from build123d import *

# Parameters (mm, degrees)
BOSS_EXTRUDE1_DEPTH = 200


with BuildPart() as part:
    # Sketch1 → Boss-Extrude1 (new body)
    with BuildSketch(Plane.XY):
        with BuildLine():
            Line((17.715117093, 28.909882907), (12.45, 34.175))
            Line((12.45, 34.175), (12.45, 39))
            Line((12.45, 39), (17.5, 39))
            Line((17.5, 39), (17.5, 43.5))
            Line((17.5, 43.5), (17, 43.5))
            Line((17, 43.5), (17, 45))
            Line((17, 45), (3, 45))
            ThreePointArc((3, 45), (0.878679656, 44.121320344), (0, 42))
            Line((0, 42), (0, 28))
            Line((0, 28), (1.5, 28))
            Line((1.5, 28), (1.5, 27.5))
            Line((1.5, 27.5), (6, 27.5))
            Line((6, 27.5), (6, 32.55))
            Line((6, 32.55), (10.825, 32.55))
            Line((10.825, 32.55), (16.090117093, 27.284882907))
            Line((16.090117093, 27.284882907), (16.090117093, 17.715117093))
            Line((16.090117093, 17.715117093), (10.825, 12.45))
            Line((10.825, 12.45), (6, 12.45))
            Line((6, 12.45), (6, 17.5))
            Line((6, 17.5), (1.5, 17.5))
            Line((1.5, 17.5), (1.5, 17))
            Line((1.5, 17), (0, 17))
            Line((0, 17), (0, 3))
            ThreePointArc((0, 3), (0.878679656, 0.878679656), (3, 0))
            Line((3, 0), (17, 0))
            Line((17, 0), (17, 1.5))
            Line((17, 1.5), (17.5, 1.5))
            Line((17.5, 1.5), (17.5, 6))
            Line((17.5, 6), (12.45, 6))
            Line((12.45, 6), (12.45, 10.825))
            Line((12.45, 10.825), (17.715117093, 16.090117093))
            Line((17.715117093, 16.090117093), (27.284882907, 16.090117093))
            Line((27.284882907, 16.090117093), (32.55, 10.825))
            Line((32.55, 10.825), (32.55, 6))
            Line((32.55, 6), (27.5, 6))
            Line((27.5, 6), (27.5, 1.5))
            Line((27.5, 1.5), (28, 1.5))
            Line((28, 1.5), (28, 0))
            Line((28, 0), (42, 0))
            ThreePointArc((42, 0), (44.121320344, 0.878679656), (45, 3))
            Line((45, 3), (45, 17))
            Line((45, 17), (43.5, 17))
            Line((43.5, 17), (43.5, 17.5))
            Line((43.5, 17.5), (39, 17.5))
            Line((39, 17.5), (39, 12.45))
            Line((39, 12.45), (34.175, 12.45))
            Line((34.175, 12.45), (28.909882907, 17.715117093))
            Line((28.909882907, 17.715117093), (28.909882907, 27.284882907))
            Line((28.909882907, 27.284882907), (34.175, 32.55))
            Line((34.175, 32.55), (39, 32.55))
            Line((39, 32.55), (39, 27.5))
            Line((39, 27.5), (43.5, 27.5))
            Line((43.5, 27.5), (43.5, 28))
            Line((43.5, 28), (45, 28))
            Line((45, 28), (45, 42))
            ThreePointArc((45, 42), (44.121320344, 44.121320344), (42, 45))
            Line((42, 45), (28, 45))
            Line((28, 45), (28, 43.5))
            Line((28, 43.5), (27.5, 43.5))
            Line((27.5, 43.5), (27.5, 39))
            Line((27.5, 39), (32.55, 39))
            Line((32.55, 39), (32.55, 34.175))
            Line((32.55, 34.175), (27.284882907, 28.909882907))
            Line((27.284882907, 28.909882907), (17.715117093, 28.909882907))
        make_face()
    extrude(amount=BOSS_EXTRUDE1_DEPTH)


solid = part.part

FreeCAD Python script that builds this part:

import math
import FreeCAD as App
import Part
import Sketcher

doc = App.newDocument("Part")
body = doc.addObject("PartDesign::Body", "Body")

# Sketch on XY plane
sketch1 = doc.addObject("Sketcher::SketchObject", "Sketch")
body.addObject(sketch1)
sketch1.AttachmentSupport = (doc.XY_Plane, [""])
sketch1.MapMode = "FlatFace"
sketch1.addGeometry(Part.LineSegment(App.Vector(17.7, 28.9, 0), App.Vector(12.4, 34.2, 0)), False)
sketch1.addGeometry(Part.LineSegment(App.Vector(12.4, 34.2, 0), App.Vector(12.4, 39, 0)), False)
sketch1.addGeometry(Part.LineSegment(App.Vector(12.4, 39, 0), App.Vector(17.5, 39, 0)), False)
sketch1.addGeometry(Part.LineSegment(App.Vector(17.5, 39, 0), App.Vector(17.5, 43.5, 0)), False)
sketch1.addGeometry(Part.LineSegment(App.Vector(17.5, 43.5, 0), App.Vector(17, 43.5, 0)), False)
sketch1.addGeometry(Part.LineSegment(App.Vector(17, 43.5, 0), App.Vector(17, 45, 0)), False)
sketch1.addGeometry(Part.LineSegment(App.Vector(17, 45, 0), App.Vector(3, 45, 0)), False)
sketch1.addGeometry(Part.ArcOfCircle(Part.Circle(App.Vector(3, 42, 0), App.Vector(0, 0, 1), 3), math.radians(90), math.radians(180)), False)
sketch1.addGeometry(Part.LineSegment(App.Vector(0, 42, 0), App.Vector(0, 28, 0)), False)
sketch1.addGeometry(Part.LineSegment(App.Vector(0, 28, 0), App.Vector(1.5, 28, 0)), False)
sketch1.addGeometry(Part.LineSegment(App.Vector(1.5, 28, 0), App.Vector(1.5, 27.5, 0)), False)
sketch1.addGeometry(Part.LineSegment(App.Vector(1.5, 27.5, 0), App.Vector(6, 27.5, 0)), False)
sketch1.addGeometry(Part.LineSegment(App.Vector(6, 27.5, 0), App.Vector(6, 32.5, 0)), False)
sketch1.addGeometry(Part.LineSegment(App.Vector(6, 32.5, 0), App.Vector(10.8, 32.5, 0)), False)
sketch1.addGeometry(Part.LineSegment(App.Vector(10.8, 32.5, 0), App.Vector(16.1, 27.3, 0)), False)
sketch1.addGeometry(Part.LineSegment(App.Vector(16.1, 27.3, 0), App.Vector(16.1, 17.7, 0)), False)
sketch1.addGeometry(Part.LineSegment(App.Vector(16.1, 17.7, 0), App.Vector(10.8, 12.4, 0)), False)
sketch1.addGeometry(Part.LineSegment(App.Vector(10.8, 12.4, 0), App.Vector(6, 12.4, 0)), False)
sketch1.addGeometry(Part.LineSegment(App.Vector(6, 12.4, 0), App.Vector(6, 17.5, 0)), False)
sketch1.addGeometry(Part.LineSegment(App.Vector(6, 17.5, 0), App.Vector(1.5, 17.5, 0)), False)
sketch1.addGeometry(Part.LineSegment(App.Vector(1.5, 17.5, 0), App.Vector(1.5, 17, 0)), False)
sketch1.addGeometry(Part.LineSegment(App.Vector(1.5, 17, 0), App.Vector(0, 17, 0)), False)
sketch1.addGeometry(Part.LineSegment(App.Vector(0, 17, 0), App.Vector(0, 3, 0)), False)
sketch1.addGeometry(Part.ArcOfCircle(Part.Circle(App.Vector(3, 3, 0), App.Vector(0, 0, 1), 3), math.radians(180), math.radians(270)), False)
sketch1.addGeometry(Part.LineSegment(App.Vector(3, 0, 0), App.Vector(17, 0, 0)), False)
sketch1.addGeometry(Part.LineSegment(App.Vector(17, 0, 0), App.Vector(17, 1.5, 0)), False)
sketch1.addGeometry(Part.LineSegment(App.Vector(17, 1.5, 0), App.Vector(17.5, 1.5, 0)), False)
sketch1.addGeometry(Part.LineSegment(App.Vector(17.5, 1.5, 0), App.Vector(17.5, 6, 0)), False)
sketch1.addGeometry(Part.LineSegment(App.Vector(17.5, 6, 0), App.Vector(12.4, 6, 0)), False)
sketch1.addGeometry(Part.LineSegment(App.Vector(12.4, 6, 0), App.Vector(12.4, 10.8, 0)), False)
sketch1.addGeometry(Part.LineSegment(App.Vector(12.4, 10.8, 0), App.Vector(17.7, 16.1, 0)), False)
sketch1.addGeometry(Part.LineSegment(App.Vector(17.7, 16.1, 0), App.Vector(27.3, 16.1, 0)), False)
sketch1.addGeometry(Part.LineSegment(App.Vector(27.3, 16.1, 0), App.Vector(32.5, 10.8, 0)), False)
sketch1.addGeometry(Part.LineSegment(App.Vector(32.5, 10.8, 0), App.Vector(32.5, 6, 0)), False)
sketch1.addGeometry(Part.LineSegment(App.Vector(32.5, 6, 0), App.Vector(27.5, 6, 0)), False)
sketch1.addGeometry(Part.LineSegment(App.Vector(27.5, 6, 0), App.Vector(27.5, 1.5, 0)), False)
sketch1.addGeometry(Part.LineSegment(App.Vector(27.5, 1.5, 0), App.Vector(28, 1.5, 0)), False)
sketch1.addGeometry(Part.LineSegment(App.Vector(28, 1.5, 0), App.Vector(28, 0, 0)), False)
sketch1.addGeometry(Part.LineSegment(App.Vector(28, 0, 0), App.Vector(42, 0, 0)), False)
sketch1.addGeometry(Part.ArcOfCircle(Part.Circle(App.Vector(42, 3, 0), App.Vector(0, 0, 1), 3), math.radians(-90), math.radians(0)), False)
sketch1.addGeometry(Part.LineSegment(App.Vector(45, 3, 0), App.Vector(45, 17, 0)), False)
sketch1.addGeometry(Part.LineSegment(App.Vector(45, 17, 0), App.Vector(43.5, 17, 0)), False)
sketch1.addGeometry(Part.LineSegment(App.Vector(43.5, 17, 0), App.Vector(43.5, 17.5, 0)), False)
sketch1.addGeometry(Part.LineSegment(App.Vector(43.5, 17.5, 0), App.Vector(39, 17.5, 0)), False)
sketch1.addGeometry(Part.LineSegment(App.Vector(39, 17.5, 0), App.Vector(39, 12.4, 0)), False)
sketch1.addGeometry(Part.LineSegment(App.Vector(39, 12.4, 0), App.Vector(34.2, 12.4, 0)), False)
sketch1.addGeometry(Part.LineSegment(App.Vector(34.2, 12.4, 0), App.Vector(28.9, 17.7, 0)), False)
sketch1.addGeometry(Part.LineSegment(App.Vector(28.9, 17.7, 0), App.Vector(28.9, 27.3, 0)), False)
sketch1.addGeometry(Part.LineSegment(App.Vector(28.9, 27.3, 0), App.Vector(34.2, 32.5, 0)), False)
sketch1.addGeometry(Part.LineSegment(App.Vector(34.2, 32.5, 0), App.Vector(39, 32.5, 0)), False)
sketch1.addGeometry(Part.LineSegment(App.Vector(39, 32.5, 0), App.Vector(39, 27.5, 0)), False)
sketch1.addGeometry(Part.LineSegment(App.Vector(39, 27.5, 0), App.Vector(43.5, 27.5, 0)), False)
sketch1.addGeometry(Part.LineSegment(App.Vector(43.5, 27.5, 0), App.Vector(43.5, 28, 0)), False)
sketch1.addGeometry(Part.LineSegment(App.Vector(43.5, 28, 0), App.Vector(45, 28, 0)), False)
sketch1.addGeometry(Part.LineSegment(App.Vector(45, 28, 0), App.Vector(45, 42, 0)), False)
sketch1.addGeometry(Part.ArcOfCircle(Part.Circle(App.Vector(42, 42, 0), App.Vector(0, 0, 1), 3), math.radians(0), math.radians(90)), False)
sketch1.addGeometry(Part.LineSegment(App.Vector(42, 45, 0), App.Vector(28, 45, 0)), False)
sketch1.addGeometry(Part.LineSegment(App.Vector(28, 45, 0), App.Vector(28, 43.5, 0)), False)
sketch1.addGeometry(Part.LineSegment(App.Vector(28, 43.5, 0), App.Vector(27.5, 43.5, 0)), False)
sketch1.addGeometry(Part.LineSegment(App.Vector(27.5, 43.5, 0), App.Vector(27.5, 39, 0)), False)
sketch1.addGeometry(Part.LineSegment(App.Vector(27.5, 39, 0), App.Vector(32.5, 39, 0)), False)
sketch1.addGeometry(Part.LineSegment(App.Vector(32.5, 39, 0), App.Vector(32.5, 34.2, 0)), False)
sketch1.addGeometry(Part.LineSegment(App.Vector(32.5, 34.2, 0), App.Vector(27.3, 28.9, 0)), False)
sketch1.addGeometry(Part.LineSegment(App.Vector(27.3, 28.9, 0), App.Vector(17.7, 28.9, 0)), False)
sketch1.addConstraint(Sketcher.Constraint("Coincident", 0, 2, 1, 1))
sketch1.addConstraint(Sketcher.Constraint("Coincident", 1, 2, 2, 1))
sketch1.addConstraint(Sketcher.Constraint("Coincident", 2, 2, 3, 1))
sketch1.addConstraint(Sketcher.Constraint("Coincident", 3, 2, 4, 1))
sketch1.addConstraint(Sketcher.Constraint("Coincident", 4, 2, 5, 1))
sketch1.addConstraint(Sketcher.Constraint("Coincident", 5, 2, 6, 1))
sketch1.addConstraint(Sketcher.Constraint("Tangent", 6, 2, 7, 1))
sketch1.addConstraint(Sketcher.Constraint("Tangent", 7, 2, 8, 1))
sketch1.addConstraint(Sketcher.Constraint("Coincident", 8, 2, 9, 1))
sketch1.addConstraint(Sketcher.Constraint("Coincident", 9, 2, 10, 1))
sketch1.addConstraint(Sketcher.Constraint("Coincident", 10, 2, 11, 1))
sketch1.addConstraint(Sketcher.Constraint("Coincident", 11, 2, 12, 1))
sketch1.addConstraint(Sketcher.Constraint("Coincident", 12, 2, 13, 1))
sketch1.addConstraint(Sketcher.Constraint("Coincident", 13, 2, 14, 1))
sketch1.addConstraint(Sketcher.Constraint("Coincident", 14, 2, 15, 1))
sketch1.addConstraint(Sketcher.Constraint("Coincident", 15, 2, 16, 1))
sketch1.addConstraint(Sketcher.Constraint("Coincident", 16, 2, 17, 1))
sketch1.addConstraint(Sketcher.Constraint("Coincident", 17, 2, 18, 1))
sketch1.addConstraint(Sketcher.Constraint("Coincident", 18, 2, 19, 1))
sketch1.addConstraint(Sketcher.Constraint("Coincident", 19, 2, 20, 1))
sketch1.addConstraint(Sketcher.Constraint("Coincident", 20, 2, 21, 1))
sketch1.addConstraint(Sketcher.Constraint("Coincident", 21, 2, 22, 1))
sketch1.addConstraint(Sketcher.Constraint("Tangent", 22, 2, 23, 1))
sketch1.addConstraint(Sketcher.Constraint("Tangent", 23, 2, 24, 1))
sketch1.addConstraint(Sketcher.Constraint("Coincident", 24, 2, 25, 1))
sketch1.addConstraint(Sketcher.Constraint("Coincident", 25, 2, 26, 1))
sketch1.addConstraint(Sketcher.Constraint("Coincident", 26, 2, 27, 1))
sketch1.addConstraint(Sketcher.Constraint("Coincident", 27, 2, 28, 1))
sketch1.addConstraint(Sketcher.Constraint("Coincident", 28, 2, 29, 1))
sketch1.addConstraint(Sketcher.Constraint("Coincident", 29, 2, 30, 1))
sketch1.addConstraint(Sketcher.Constraint("Coincident", 30, 2, 31, 1))
sketch1.addConstraint(Sketcher.Constraint("Coincident", 31, 2, 32, 1))
sketch1.addConstraint(Sketcher.Constraint("Coincident", 32, 2, 33, 1))
sketch1.addConstraint(Sketcher.Constraint("Coincident", 33, 2, 34, 1))
sketch1.addConstraint(Sketcher.Constraint("Coincident", 34, 2, 35, 1))
sketch1.addConstraint(Sketcher.Constraint("Coincident", 35, 2, 36, 1))
sketch1.addConstraint(Sketcher.Constraint("Coincident", 36, 2, 37, 1))
sketch1.addConstraint(Sketcher.Constraint("Coincident", 37, 2, 38, 1))
sketch1.addConstraint(Sketcher.Constraint("Tangent", 38, 2, 39, 1))
sketch1.addConstraint(Sketcher.Constraint("Tangent", 39, 2, 40, 1))
sketch1.addConstraint(Sketcher.Constraint("Coincident", 40, 2, 41, 1))
sketch1.addConstraint(Sketcher.Constraint("Coincident", 41, 2, 42, 1))
sketch1.addConstraint(Sketcher.Constraint("Coincident", 42, 2, 43, 1))
sketch1.addConstraint(Sketcher.Constraint("Coincident", 43, 2, 44, 1))
sketch1.addConstraint(Sketcher.Constraint("Coincident", 44, 2, 45, 1))
sketch1.addConstraint(Sketcher.Constraint("Coincident", 45, 2, 46, 1))
sketch1.addConstraint(Sketcher.Constraint("Coincident", 46, 2, 47, 1))
sketch1.addConstraint(Sketcher.Constraint("Coincident", 47, 2, 48, 1))
sketch1.addConstraint(Sketcher.Constraint("Coincident", 48, 2, 49, 1))
sketch1.addConstraint(Sketcher.Constraint("Coincident", 49, 2, 50, 1))
sketch1.addConstraint(Sketcher.Constraint("Coincident", 50, 2, 51, 1))
sketch1.addConstraint(Sketcher.Constraint("Coincident", 51, 2, 52, 1))
sketch1.addConstraint(Sketcher.Constraint("Coincident", 52, 2, 53, 1))
sketch1.addConstraint(Sketcher.Constraint("Coincident", 53, 2, 54, 1))
sketch1.addConstraint(Sketcher.Constraint("Tangent", 54, 2, 55, 1))
sketch1.addConstraint(Sketcher.Constraint("Tangent", 55, 2, 56, 1))
sketch1.addConstraint(Sketcher.Constraint("Coincident", 56, 2, 57, 1))
sketch1.addConstraint(Sketcher.Constraint("Coincident", 57, 2, 58, 1))
sketch1.addConstraint(Sketcher.Constraint("Coincident", 58, 2, 59, 1))
sketch1.addConstraint(Sketcher.Constraint("Coincident", 59, 2, 60, 1))
sketch1.addConstraint(Sketcher.Constraint("Coincident", 60, 2, 61, 1))
sketch1.addConstraint(Sketcher.Constraint("Coincident", 61, 2, 62, 1))
sketch1.addConstraint(Sketcher.Constraint("Coincident", 62, 2, 63, 1))
sketch1.addConstraint(Sketcher.Constraint("Coincident", 63, 2, 0, 1))
sketch1.addConstraint(Sketcher.Constraint("Vertical", 1))
sketch1.addConstraint(Sketcher.Constraint("Horizontal", 2))
sketch1.addConstraint(Sketcher.Constraint("Vertical", 3))
sketch1.addConstraint(Sketcher.Constraint("Horizontal", 4))
sketch1.addConstraint(Sketcher.Constraint("Vertical", 5))
sketch1.addConstraint(Sketcher.Constraint("Horizontal", 6))
sketch1.addConstraint(Sketcher.Constraint("Vertical", 8))
sketch1.addConstraint(Sketcher.Constraint("Horizontal", 9))
sketch1.addConstraint(Sketcher.Constraint("Vertical", 10))
sketch1.addConstraint(Sketcher.Constraint("Horizontal", 11))
sketch1.addConstraint(Sketcher.Constraint("Vertical", 12))
sketch1.addConstraint(Sketcher.Constraint("Horizontal", 13))
sketch1.addConstraint(Sketcher.Constraint("Vertical", 15))
sketch1.addConstraint(Sketcher.Constraint("Horizontal", 17))
sketch1.addConstraint(Sketcher.Constraint("Vertical", 18))
sketch1.addConstraint(Sketcher.Constraint("Horizontal", 19))
sketch1.addConstraint(Sketcher.Constraint("Vertical", 20))
sketch1.addConstraint(Sketcher.Constraint("Horizontal", 21))
sketch1.addConstraint(Sketcher.Constraint("Vertical", 22))
sketch1.addConstraint(Sketcher.Constraint("Horizontal", 24))
sketch1.addConstraint(Sketcher.Constraint("Vertical", 25))
sketch1.addConstraint(Sketcher.Constraint("Horizontal", 26))
sketch1.addConstraint(Sketcher.Constraint("Vertical", 27))
sketch1.addConstraint(Sketcher.Constraint("Horizontal", 28))
sketch1.addConstraint(Sketcher.Constraint("Vertical", 29))
sketch1.addConstraint(Sketcher.Constraint("Horizontal", 31))
sketch1.addConstraint(Sketcher.Constraint("Vertical", 33))
sketch1.addConstraint(Sketcher.Constraint("Horizontal", 34))
sketch1.addConstraint(Sketcher.Constraint("Vertical", 35))
sketch1.addConstraint(Sketcher.Constraint("Horizontal", 36))
sketch1.addConstraint(Sketcher.Constraint("Vertical", 37))
sketch1.addConstraint(Sketcher.Constraint("Horizontal", 38))
sketch1.addConstraint(Sketcher.Constraint("Vertical", 40))
sketch1.addConstraint(Sketcher.Constraint("Horizontal", 41))
sketch1.addConstraint(Sketcher.Constraint("Vertical", 42))
sketch1.addConstraint(Sketcher.Constraint("Horizontal", 43))
sketch1.addConstraint(Sketcher.Constraint("Vertical", 44))
sketch1.addConstraint(Sketcher.Constraint("Horizontal", 45))
sketch1.addConstraint(Sketcher.Constraint("Vertical", 47))
sketch1.addConstraint(Sketcher.Constraint("Horizontal", 49))
sketch1.addConstraint(Sketcher.Constraint("Vertical", 50))
sketch1.addConstraint(Sketcher.Constraint("Horizontal", 51))
sketch1.addConstraint(Sketcher.Constraint("Vertical", 52))
sketch1.addConstraint(Sketcher.Constraint("Horizontal", 53))
sketch1.addConstraint(Sketcher.Constraint("Vertical", 54))
sketch1.addConstraint(Sketcher.Constraint("Horizontal", 56))
sketch1.addConstraint(Sketcher.Constraint("Vertical", 57))
sketch1.addConstraint(Sketcher.Constraint("Horizontal", 58))
sketch1.addConstraint(Sketcher.Constraint("Vertical", 59))
sketch1.addConstraint(Sketcher.Constraint("Horizontal", 60))
sketch1.addConstraint(Sketcher.Constraint("Vertical", 61))
sketch1.addConstraint(Sketcher.Constraint("Horizontal", 63))
sketch1.addConstraint(Sketcher.Constraint("Equal", 7, 23))
sketch1.addConstraint(Sketcher.Constraint("Equal", 23, 39))
sketch1.addConstraint(Sketcher.Constraint("Equal", 39, 55))
sketch1.addConstraint(Sketcher.Constraint("PointOnObject", 7, 2, -2))
sketch1.addConstraint(Sketcher.Constraint("PointOnObject", 21, 2, -2))
sketch1.addConstraint(Sketcher.Constraint("PointOnObject", 23, 2, -1))
sketch1.addConstraint(Sketcher.Constraint("PointOnObject", 37, 2, -1))
sketch1.addConstraint(Sketcher.Constraint("Parallel", 0, 14))
sketch1.addConstraint(Sketcher.Constraint("Perpendicular", 14, 16))
sketch1.addConstraint(Sketcher.Constraint("Parallel", 16, 30))
sketch1.addConstraint(Sketcher.Constraint("Perpendicular", 30, 32))
sketch1.addConstraint(Sketcher.Constraint("Parallel", 32, 46))
sketch1.addConstraint(Sketcher.Constraint("Perpendicular", 46, 48))
sketch1.addConstraint(Sketcher.Constraint("Parallel", 48, 62))
sketch1.addConstraint(Sketcher.Constraint("Horizontal", 7, 3, 55, 3))
sketch1.addConstraint(Sketcher.Constraint("Horizontal", 29, 2, 32, 2))
sketch1.addConstraint(Sketcher.Constraint("Horizontal", 28, 2, 33, 2))
sketch1.addConstraint(Sketcher.Constraint("Horizontal", 26, 2, 35, 2))
sketch1.addConstraint(Sketcher.Constraint("Horizontal", 21, 2, 40, 2))
sketch1.addConstraint(Sketcher.Constraint("Horizontal", 19, 2, 42, 2))
sketch1.addConstraint(Sketcher.Constraint("Horizontal", 17, 2, 44, 2))
sketch1.addConstraint(Sketcher.Constraint("Horizontal", 15, 2, 46, 2))
sketch1.addConstraint(Sketcher.Constraint("Horizontal", 14, 2, 47, 2))
sketch1.addConstraint(Sketcher.Constraint("Horizontal", 13, 2, 48, 2))
sketch1.addConstraint(Sketcher.Constraint("Horizontal", 11, 2, 50, 2))
sketch1.addConstraint(Sketcher.Constraint("Horizontal", 9, 2, 52, 2))
sketch1.addConstraint(Sketcher.Constraint("Horizontal", 4, 2, 57, 2))
sketch1.addConstraint(Sketcher.Constraint("Horizontal", 2, 2, 59, 2))
sketch1.addConstraint(Sketcher.Constraint("Horizontal", 0, 2, 61, 2))
sketch1.addConstraint(Sketcher.Constraint("Vertical", 39, 3, 55, 3))
sketch1.addConstraint(Sketcher.Constraint("Vertical", 13, 2, 16, 2))
sketch1.addConstraint(Sketcher.Constraint("Vertical", 12, 2, 17, 2))
sketch1.addConstraint(Sketcher.Constraint("Vertical", 10, 2, 19, 2))
sketch1.addConstraint(Sketcher.Constraint("Vertical", 5, 2, 24, 2))
sketch1.addConstraint(Sketcher.Constraint("Vertical", 3, 2, 26, 2))
sketch1.addConstraint(Sketcher.Constraint("Vertical", 1, 2, 28, 2))
sketch1.addConstraint(Sketcher.Constraint("Vertical", 45, 2, 48, 2))
sketch1.addConstraint(Sketcher.Constraint("Vertical", 44, 2, 49, 2))
sketch1.addConstraint(Sketcher.Constraint("Vertical", 42, 2, 51, 2))
sketch1.addConstraint(Sketcher.Constraint("Vertical", 37, 2, 56, 2))
sketch1.addConstraint(Sketcher.Constraint("Vertical", 35, 2, 58, 2))
sketch1.addConstraint(Sketcher.Constraint("Vertical", 33, 2, 60, 2))
sketch1.addConstraint(Sketcher.Constraint("Vertical", 31, 2, 62, 2))
sketch1.addConstraint(Sketcher.Constraint("Equal", 28, 34))
sketch1.addConstraint(Sketcher.Constraint("Equal", 26, 36))
sketch1.addConstraint(Sketcher.Constraint("Equal", 24, 38))
sketch1.addConstraint(Sketcher.Constraint("Equal", 21, 41))
sketch1.addConstraint(Sketcher.Constraint("Equal", 19, 43))
sketch1.addConstraint(Sketcher.Constraint("Equal", 17, 45))
sketch1.addConstraint(Sketcher.Constraint("Equal", 49, 1))
sketch1.addConstraint(Sketcher.Constraint("Equal", 51, 3))
sketch1.addConstraint(Sketcher.Constraint("Equal", 53, 5))
sketch1.addConstraint(Sketcher.Constraint("Equal", 56, 8))
sketch1.addConstraint(Sketcher.Constraint("Equal", 58, 10))
sketch1.addConstraint(Sketcher.Constraint("Equal", 60, 12))
sketch1.addConstraint(Sketcher.Constraint("Equal", 63, 15))
sketch1.addConstraint(Sketcher.Constraint("Equal", 12, 18))
sketch1.addConstraint(Sketcher.Constraint("Equal", 10, 20))
sketch1.addConstraint(Sketcher.Constraint("Equal", 8, 22))
sketch1.addConstraint(Sketcher.Constraint("Equal", 5, 25))
sketch1.addConstraint(Sketcher.Constraint("Equal", 3, 27))
sketch1.addConstraint(Sketcher.Constraint("Equal", 1, 29))
sketch1.addConstraint(Sketcher.Constraint("Equal", 0, 14))
sketch1.addConstraint(Sketcher.Constraint("Radius", 7, 3.0))
sketch1.addConstraint(Sketcher.Constraint("DistanceX", 6, 2, 6, 1, 14.0))
sketch1.addConstraint(Sketcher.Constraint("DistanceX", 4, 2, 4, 1, 0.5))
sketch1.addConstraint(Sketcher.Constraint("DistanceX", 9, 1, 9, 2, 1.5))
sketch1.addConstraint(Sketcher.Constraint("DistanceX", 11, 1, 11, 2, 4.5))
sketch1.addConstraint(Sketcher.Constraint("DistanceY", -1, 1, 7, 3, 42.0))
sketch1.addConstraint(Sketcher.Constraint("DistanceX", 2, 1, 2, 2, 5.05))
sketch1.addConstraint(Sketcher.Constraint("DistanceX", 13, 1, 13, 2, 4.825))
sketch1.addConstraint(Sketcher.Constraint("Distance", 0, 7.446))
pad1 = doc.addObject("PartDesign::Pad", "Pad")
body.addObject(pad1)
pad1.Profile = sketch1
pad1.Length = 200

doc.recompute()
